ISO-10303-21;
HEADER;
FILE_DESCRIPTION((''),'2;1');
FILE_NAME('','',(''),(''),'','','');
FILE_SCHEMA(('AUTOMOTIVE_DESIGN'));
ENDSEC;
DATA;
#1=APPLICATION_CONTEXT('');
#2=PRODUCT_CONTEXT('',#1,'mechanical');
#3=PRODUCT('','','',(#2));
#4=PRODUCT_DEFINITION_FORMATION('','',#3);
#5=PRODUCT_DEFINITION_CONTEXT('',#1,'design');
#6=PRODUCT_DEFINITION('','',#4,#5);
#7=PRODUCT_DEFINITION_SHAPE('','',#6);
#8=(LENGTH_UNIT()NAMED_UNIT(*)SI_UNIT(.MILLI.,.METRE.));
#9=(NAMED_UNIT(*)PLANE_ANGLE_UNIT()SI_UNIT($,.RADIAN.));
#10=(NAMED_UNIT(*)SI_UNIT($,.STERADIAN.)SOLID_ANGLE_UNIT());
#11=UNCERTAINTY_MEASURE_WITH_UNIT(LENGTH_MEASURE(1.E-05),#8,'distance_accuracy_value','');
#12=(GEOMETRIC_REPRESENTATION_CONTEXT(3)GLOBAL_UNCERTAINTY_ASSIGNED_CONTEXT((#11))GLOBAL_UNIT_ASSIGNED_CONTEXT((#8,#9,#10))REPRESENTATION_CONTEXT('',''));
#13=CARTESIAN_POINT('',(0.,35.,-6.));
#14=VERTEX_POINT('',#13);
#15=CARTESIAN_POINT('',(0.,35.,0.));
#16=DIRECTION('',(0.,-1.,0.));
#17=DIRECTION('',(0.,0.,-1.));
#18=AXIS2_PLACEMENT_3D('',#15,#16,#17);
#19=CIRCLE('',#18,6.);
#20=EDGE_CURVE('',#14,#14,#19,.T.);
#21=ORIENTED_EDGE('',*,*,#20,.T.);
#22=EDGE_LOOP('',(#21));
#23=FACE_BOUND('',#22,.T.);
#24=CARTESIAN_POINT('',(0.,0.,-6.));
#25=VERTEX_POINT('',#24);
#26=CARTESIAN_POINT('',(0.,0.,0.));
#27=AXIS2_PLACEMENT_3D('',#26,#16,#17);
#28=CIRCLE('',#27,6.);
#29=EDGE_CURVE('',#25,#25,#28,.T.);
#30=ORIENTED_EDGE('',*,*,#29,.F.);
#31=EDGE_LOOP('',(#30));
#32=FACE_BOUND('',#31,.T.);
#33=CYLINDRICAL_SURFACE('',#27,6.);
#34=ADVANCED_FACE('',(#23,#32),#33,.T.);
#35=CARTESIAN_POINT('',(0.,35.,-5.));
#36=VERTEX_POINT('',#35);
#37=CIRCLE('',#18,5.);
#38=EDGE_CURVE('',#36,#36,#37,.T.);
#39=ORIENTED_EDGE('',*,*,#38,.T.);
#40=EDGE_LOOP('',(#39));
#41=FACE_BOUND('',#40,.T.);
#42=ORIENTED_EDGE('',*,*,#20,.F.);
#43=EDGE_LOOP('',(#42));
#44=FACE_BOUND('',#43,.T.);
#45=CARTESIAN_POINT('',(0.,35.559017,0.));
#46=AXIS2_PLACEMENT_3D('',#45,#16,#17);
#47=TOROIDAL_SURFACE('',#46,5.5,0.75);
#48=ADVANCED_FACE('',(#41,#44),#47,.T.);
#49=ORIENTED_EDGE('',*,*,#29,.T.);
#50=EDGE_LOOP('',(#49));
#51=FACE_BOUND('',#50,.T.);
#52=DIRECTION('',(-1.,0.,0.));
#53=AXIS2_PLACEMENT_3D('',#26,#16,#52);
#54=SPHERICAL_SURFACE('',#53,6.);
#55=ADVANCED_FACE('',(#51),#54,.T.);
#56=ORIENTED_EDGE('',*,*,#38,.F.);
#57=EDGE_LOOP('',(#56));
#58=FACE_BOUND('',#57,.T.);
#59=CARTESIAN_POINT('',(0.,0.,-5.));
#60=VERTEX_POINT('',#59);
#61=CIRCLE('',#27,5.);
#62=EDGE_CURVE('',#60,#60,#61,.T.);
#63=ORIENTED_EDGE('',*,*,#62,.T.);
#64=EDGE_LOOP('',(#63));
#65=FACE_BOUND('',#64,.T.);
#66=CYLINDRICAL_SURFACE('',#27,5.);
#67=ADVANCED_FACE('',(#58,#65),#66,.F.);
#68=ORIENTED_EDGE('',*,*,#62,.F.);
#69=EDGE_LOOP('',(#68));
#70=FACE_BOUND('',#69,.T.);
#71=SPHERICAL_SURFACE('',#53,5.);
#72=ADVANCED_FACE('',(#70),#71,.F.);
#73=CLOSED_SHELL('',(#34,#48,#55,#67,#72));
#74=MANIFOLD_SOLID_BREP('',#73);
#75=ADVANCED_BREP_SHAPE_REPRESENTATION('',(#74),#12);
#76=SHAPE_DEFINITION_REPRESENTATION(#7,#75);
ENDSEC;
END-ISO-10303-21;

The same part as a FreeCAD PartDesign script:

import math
import FreeCAD as App
import Part
import Sketcher

V = App.Vector
Q = App.Units.Quantity

doc = App.newDocument("Part")
body = doc.addObject("PartDesign::Body", "Body")

# Sketch on XY plane
sketch1 = body.newObject("Sketcher::SketchObject", "Sketch")
sketch1.AttachmentSupport = (doc.getObject("XY_Plane"), [""])
sketch1.MapMode = "FlatFace"
sketch1.addGeometry(Part.ArcOfCircle(Part.Circle(V(0, 0, 0), V(0, 0, 1), 6), math.radians(-34), math.radians(0)), False)
sketch1.addGeometry(Part.LineSegment(V(6, 0, 0), V(6, 35, 0)), False)
sketch1.addGeometry(Part.ArcOfCircle(Part.Circle(V(5.5, 35.6, 0), V(0, 0, 1), 0.8), math.radians(-48), math.radians(144)), False)
sketch1.addGeometry(Part.ArcOfCircle(Part.Circle(V(5.5, 35.6, 0), V(0, 0, 1), 0.8), math.radians(144), math.radians(228)), False)
sketch1.addGeometry(Part.LineSegment(V(5, 35, 0), V(5, 0, 0)), False)
sketch1.addGeometry(Part.ArcOfCircle(Part.Circle(V(0, 0, 0), V(0, 0, 1), 5), math.radians(-90), math.radians(0)), False)
sketch1.addGeometry(Part.LineSegment(V(0, -5, 0), V(0, -6, 0)), False)
sketch1.addGeometry(Part.ArcOfCircle(Part.Circle(V(0, 0, 0), V(0, 0, 1), 6), math.radians(-90), math.radians(-34)), False)
sketch1.addConstraint(Sketcher.Constraint("Tangent", 0, 2, 1, 1))
sketch1.addConstraint(Sketcher.Constraint("Coincident", 1, 2, 2, 1))
sketch1.addConstraint(Sketcher.Constraint("Tangent", 2, 2, 3, 1))
sketch1.addConstraint(Sketcher.Constraint("Coincident", 3, 2, 4, 1))
sketch1.addConstraint(Sketcher.Constraint("Tangent", 4, 2, 5, 2))
sketch1.addConstraint(Sketcher.Constraint("Coincident", 5, 1, 6, 1))
sketch1.addConstraint(Sketcher.Constraint("Coincident", 6, 2, 7, 1))
sketch1.addConstraint(Sketcher.Constraint("Tangent", 7, 2, 0, 1))
sketch1.addConstraint(Sketcher.Constraint("Vertical", 1))
sketch1.addConstraint(Sketcher.Constraint("Vertical", 4))
sketch1.addConstraint(Sketcher.Constraint("Vertical", 6))
sketch1.addConstraint(Sketcher.Constraint("Coincident", 0, 3, -1, 1))
sketch1.addConstraint(Sketcher.Constraint("Coincident", 5, 3, -1, 1))
sketch1.addConstraint(Sketcher.Constraint("Equal", 2, 3))
sketch1.addConstraint(Sketcher.Constraint("Equal", 0, 7))
sketch1.addConstraint(Sketcher.Constraint("PointOnObject", 5, 1, -2))
sketch1.addConstraint(Sketcher.Constraint("Horizontal", 1, 2, 3, 2))
sketch1.addConstraint(Sketcher.Constraint("Vertical", 4, 2, 7, 2))
sketch1.addConstraint(Sketcher.Constraint("Radius", 0, Q("6 mm")))
sketch1.addConstraint(Sketcher.Constraint("Radius", 5, Q("5 mm")))
sketch1.addConstraint(Sketcher.Constraint("DistanceY", 1, 1, 1, 2, Q("35 mm")))
sketch1.addConstraint(Sketcher.Constraint("Radius", 2, Q("0.75 mm")))
sketch1.addConstraint(Sketcher.Constraint("DistanceY", -1, 1, 2, 2, Q("36 mm")))
revolution = body.newObject("PartDesign::Revolution", "Revolution")
revolution.Profile = sketch1
revolution.ReferenceAxis = (sketch1, ["V_Axis"])
revolution.Angle = 360

doc.recompute()
